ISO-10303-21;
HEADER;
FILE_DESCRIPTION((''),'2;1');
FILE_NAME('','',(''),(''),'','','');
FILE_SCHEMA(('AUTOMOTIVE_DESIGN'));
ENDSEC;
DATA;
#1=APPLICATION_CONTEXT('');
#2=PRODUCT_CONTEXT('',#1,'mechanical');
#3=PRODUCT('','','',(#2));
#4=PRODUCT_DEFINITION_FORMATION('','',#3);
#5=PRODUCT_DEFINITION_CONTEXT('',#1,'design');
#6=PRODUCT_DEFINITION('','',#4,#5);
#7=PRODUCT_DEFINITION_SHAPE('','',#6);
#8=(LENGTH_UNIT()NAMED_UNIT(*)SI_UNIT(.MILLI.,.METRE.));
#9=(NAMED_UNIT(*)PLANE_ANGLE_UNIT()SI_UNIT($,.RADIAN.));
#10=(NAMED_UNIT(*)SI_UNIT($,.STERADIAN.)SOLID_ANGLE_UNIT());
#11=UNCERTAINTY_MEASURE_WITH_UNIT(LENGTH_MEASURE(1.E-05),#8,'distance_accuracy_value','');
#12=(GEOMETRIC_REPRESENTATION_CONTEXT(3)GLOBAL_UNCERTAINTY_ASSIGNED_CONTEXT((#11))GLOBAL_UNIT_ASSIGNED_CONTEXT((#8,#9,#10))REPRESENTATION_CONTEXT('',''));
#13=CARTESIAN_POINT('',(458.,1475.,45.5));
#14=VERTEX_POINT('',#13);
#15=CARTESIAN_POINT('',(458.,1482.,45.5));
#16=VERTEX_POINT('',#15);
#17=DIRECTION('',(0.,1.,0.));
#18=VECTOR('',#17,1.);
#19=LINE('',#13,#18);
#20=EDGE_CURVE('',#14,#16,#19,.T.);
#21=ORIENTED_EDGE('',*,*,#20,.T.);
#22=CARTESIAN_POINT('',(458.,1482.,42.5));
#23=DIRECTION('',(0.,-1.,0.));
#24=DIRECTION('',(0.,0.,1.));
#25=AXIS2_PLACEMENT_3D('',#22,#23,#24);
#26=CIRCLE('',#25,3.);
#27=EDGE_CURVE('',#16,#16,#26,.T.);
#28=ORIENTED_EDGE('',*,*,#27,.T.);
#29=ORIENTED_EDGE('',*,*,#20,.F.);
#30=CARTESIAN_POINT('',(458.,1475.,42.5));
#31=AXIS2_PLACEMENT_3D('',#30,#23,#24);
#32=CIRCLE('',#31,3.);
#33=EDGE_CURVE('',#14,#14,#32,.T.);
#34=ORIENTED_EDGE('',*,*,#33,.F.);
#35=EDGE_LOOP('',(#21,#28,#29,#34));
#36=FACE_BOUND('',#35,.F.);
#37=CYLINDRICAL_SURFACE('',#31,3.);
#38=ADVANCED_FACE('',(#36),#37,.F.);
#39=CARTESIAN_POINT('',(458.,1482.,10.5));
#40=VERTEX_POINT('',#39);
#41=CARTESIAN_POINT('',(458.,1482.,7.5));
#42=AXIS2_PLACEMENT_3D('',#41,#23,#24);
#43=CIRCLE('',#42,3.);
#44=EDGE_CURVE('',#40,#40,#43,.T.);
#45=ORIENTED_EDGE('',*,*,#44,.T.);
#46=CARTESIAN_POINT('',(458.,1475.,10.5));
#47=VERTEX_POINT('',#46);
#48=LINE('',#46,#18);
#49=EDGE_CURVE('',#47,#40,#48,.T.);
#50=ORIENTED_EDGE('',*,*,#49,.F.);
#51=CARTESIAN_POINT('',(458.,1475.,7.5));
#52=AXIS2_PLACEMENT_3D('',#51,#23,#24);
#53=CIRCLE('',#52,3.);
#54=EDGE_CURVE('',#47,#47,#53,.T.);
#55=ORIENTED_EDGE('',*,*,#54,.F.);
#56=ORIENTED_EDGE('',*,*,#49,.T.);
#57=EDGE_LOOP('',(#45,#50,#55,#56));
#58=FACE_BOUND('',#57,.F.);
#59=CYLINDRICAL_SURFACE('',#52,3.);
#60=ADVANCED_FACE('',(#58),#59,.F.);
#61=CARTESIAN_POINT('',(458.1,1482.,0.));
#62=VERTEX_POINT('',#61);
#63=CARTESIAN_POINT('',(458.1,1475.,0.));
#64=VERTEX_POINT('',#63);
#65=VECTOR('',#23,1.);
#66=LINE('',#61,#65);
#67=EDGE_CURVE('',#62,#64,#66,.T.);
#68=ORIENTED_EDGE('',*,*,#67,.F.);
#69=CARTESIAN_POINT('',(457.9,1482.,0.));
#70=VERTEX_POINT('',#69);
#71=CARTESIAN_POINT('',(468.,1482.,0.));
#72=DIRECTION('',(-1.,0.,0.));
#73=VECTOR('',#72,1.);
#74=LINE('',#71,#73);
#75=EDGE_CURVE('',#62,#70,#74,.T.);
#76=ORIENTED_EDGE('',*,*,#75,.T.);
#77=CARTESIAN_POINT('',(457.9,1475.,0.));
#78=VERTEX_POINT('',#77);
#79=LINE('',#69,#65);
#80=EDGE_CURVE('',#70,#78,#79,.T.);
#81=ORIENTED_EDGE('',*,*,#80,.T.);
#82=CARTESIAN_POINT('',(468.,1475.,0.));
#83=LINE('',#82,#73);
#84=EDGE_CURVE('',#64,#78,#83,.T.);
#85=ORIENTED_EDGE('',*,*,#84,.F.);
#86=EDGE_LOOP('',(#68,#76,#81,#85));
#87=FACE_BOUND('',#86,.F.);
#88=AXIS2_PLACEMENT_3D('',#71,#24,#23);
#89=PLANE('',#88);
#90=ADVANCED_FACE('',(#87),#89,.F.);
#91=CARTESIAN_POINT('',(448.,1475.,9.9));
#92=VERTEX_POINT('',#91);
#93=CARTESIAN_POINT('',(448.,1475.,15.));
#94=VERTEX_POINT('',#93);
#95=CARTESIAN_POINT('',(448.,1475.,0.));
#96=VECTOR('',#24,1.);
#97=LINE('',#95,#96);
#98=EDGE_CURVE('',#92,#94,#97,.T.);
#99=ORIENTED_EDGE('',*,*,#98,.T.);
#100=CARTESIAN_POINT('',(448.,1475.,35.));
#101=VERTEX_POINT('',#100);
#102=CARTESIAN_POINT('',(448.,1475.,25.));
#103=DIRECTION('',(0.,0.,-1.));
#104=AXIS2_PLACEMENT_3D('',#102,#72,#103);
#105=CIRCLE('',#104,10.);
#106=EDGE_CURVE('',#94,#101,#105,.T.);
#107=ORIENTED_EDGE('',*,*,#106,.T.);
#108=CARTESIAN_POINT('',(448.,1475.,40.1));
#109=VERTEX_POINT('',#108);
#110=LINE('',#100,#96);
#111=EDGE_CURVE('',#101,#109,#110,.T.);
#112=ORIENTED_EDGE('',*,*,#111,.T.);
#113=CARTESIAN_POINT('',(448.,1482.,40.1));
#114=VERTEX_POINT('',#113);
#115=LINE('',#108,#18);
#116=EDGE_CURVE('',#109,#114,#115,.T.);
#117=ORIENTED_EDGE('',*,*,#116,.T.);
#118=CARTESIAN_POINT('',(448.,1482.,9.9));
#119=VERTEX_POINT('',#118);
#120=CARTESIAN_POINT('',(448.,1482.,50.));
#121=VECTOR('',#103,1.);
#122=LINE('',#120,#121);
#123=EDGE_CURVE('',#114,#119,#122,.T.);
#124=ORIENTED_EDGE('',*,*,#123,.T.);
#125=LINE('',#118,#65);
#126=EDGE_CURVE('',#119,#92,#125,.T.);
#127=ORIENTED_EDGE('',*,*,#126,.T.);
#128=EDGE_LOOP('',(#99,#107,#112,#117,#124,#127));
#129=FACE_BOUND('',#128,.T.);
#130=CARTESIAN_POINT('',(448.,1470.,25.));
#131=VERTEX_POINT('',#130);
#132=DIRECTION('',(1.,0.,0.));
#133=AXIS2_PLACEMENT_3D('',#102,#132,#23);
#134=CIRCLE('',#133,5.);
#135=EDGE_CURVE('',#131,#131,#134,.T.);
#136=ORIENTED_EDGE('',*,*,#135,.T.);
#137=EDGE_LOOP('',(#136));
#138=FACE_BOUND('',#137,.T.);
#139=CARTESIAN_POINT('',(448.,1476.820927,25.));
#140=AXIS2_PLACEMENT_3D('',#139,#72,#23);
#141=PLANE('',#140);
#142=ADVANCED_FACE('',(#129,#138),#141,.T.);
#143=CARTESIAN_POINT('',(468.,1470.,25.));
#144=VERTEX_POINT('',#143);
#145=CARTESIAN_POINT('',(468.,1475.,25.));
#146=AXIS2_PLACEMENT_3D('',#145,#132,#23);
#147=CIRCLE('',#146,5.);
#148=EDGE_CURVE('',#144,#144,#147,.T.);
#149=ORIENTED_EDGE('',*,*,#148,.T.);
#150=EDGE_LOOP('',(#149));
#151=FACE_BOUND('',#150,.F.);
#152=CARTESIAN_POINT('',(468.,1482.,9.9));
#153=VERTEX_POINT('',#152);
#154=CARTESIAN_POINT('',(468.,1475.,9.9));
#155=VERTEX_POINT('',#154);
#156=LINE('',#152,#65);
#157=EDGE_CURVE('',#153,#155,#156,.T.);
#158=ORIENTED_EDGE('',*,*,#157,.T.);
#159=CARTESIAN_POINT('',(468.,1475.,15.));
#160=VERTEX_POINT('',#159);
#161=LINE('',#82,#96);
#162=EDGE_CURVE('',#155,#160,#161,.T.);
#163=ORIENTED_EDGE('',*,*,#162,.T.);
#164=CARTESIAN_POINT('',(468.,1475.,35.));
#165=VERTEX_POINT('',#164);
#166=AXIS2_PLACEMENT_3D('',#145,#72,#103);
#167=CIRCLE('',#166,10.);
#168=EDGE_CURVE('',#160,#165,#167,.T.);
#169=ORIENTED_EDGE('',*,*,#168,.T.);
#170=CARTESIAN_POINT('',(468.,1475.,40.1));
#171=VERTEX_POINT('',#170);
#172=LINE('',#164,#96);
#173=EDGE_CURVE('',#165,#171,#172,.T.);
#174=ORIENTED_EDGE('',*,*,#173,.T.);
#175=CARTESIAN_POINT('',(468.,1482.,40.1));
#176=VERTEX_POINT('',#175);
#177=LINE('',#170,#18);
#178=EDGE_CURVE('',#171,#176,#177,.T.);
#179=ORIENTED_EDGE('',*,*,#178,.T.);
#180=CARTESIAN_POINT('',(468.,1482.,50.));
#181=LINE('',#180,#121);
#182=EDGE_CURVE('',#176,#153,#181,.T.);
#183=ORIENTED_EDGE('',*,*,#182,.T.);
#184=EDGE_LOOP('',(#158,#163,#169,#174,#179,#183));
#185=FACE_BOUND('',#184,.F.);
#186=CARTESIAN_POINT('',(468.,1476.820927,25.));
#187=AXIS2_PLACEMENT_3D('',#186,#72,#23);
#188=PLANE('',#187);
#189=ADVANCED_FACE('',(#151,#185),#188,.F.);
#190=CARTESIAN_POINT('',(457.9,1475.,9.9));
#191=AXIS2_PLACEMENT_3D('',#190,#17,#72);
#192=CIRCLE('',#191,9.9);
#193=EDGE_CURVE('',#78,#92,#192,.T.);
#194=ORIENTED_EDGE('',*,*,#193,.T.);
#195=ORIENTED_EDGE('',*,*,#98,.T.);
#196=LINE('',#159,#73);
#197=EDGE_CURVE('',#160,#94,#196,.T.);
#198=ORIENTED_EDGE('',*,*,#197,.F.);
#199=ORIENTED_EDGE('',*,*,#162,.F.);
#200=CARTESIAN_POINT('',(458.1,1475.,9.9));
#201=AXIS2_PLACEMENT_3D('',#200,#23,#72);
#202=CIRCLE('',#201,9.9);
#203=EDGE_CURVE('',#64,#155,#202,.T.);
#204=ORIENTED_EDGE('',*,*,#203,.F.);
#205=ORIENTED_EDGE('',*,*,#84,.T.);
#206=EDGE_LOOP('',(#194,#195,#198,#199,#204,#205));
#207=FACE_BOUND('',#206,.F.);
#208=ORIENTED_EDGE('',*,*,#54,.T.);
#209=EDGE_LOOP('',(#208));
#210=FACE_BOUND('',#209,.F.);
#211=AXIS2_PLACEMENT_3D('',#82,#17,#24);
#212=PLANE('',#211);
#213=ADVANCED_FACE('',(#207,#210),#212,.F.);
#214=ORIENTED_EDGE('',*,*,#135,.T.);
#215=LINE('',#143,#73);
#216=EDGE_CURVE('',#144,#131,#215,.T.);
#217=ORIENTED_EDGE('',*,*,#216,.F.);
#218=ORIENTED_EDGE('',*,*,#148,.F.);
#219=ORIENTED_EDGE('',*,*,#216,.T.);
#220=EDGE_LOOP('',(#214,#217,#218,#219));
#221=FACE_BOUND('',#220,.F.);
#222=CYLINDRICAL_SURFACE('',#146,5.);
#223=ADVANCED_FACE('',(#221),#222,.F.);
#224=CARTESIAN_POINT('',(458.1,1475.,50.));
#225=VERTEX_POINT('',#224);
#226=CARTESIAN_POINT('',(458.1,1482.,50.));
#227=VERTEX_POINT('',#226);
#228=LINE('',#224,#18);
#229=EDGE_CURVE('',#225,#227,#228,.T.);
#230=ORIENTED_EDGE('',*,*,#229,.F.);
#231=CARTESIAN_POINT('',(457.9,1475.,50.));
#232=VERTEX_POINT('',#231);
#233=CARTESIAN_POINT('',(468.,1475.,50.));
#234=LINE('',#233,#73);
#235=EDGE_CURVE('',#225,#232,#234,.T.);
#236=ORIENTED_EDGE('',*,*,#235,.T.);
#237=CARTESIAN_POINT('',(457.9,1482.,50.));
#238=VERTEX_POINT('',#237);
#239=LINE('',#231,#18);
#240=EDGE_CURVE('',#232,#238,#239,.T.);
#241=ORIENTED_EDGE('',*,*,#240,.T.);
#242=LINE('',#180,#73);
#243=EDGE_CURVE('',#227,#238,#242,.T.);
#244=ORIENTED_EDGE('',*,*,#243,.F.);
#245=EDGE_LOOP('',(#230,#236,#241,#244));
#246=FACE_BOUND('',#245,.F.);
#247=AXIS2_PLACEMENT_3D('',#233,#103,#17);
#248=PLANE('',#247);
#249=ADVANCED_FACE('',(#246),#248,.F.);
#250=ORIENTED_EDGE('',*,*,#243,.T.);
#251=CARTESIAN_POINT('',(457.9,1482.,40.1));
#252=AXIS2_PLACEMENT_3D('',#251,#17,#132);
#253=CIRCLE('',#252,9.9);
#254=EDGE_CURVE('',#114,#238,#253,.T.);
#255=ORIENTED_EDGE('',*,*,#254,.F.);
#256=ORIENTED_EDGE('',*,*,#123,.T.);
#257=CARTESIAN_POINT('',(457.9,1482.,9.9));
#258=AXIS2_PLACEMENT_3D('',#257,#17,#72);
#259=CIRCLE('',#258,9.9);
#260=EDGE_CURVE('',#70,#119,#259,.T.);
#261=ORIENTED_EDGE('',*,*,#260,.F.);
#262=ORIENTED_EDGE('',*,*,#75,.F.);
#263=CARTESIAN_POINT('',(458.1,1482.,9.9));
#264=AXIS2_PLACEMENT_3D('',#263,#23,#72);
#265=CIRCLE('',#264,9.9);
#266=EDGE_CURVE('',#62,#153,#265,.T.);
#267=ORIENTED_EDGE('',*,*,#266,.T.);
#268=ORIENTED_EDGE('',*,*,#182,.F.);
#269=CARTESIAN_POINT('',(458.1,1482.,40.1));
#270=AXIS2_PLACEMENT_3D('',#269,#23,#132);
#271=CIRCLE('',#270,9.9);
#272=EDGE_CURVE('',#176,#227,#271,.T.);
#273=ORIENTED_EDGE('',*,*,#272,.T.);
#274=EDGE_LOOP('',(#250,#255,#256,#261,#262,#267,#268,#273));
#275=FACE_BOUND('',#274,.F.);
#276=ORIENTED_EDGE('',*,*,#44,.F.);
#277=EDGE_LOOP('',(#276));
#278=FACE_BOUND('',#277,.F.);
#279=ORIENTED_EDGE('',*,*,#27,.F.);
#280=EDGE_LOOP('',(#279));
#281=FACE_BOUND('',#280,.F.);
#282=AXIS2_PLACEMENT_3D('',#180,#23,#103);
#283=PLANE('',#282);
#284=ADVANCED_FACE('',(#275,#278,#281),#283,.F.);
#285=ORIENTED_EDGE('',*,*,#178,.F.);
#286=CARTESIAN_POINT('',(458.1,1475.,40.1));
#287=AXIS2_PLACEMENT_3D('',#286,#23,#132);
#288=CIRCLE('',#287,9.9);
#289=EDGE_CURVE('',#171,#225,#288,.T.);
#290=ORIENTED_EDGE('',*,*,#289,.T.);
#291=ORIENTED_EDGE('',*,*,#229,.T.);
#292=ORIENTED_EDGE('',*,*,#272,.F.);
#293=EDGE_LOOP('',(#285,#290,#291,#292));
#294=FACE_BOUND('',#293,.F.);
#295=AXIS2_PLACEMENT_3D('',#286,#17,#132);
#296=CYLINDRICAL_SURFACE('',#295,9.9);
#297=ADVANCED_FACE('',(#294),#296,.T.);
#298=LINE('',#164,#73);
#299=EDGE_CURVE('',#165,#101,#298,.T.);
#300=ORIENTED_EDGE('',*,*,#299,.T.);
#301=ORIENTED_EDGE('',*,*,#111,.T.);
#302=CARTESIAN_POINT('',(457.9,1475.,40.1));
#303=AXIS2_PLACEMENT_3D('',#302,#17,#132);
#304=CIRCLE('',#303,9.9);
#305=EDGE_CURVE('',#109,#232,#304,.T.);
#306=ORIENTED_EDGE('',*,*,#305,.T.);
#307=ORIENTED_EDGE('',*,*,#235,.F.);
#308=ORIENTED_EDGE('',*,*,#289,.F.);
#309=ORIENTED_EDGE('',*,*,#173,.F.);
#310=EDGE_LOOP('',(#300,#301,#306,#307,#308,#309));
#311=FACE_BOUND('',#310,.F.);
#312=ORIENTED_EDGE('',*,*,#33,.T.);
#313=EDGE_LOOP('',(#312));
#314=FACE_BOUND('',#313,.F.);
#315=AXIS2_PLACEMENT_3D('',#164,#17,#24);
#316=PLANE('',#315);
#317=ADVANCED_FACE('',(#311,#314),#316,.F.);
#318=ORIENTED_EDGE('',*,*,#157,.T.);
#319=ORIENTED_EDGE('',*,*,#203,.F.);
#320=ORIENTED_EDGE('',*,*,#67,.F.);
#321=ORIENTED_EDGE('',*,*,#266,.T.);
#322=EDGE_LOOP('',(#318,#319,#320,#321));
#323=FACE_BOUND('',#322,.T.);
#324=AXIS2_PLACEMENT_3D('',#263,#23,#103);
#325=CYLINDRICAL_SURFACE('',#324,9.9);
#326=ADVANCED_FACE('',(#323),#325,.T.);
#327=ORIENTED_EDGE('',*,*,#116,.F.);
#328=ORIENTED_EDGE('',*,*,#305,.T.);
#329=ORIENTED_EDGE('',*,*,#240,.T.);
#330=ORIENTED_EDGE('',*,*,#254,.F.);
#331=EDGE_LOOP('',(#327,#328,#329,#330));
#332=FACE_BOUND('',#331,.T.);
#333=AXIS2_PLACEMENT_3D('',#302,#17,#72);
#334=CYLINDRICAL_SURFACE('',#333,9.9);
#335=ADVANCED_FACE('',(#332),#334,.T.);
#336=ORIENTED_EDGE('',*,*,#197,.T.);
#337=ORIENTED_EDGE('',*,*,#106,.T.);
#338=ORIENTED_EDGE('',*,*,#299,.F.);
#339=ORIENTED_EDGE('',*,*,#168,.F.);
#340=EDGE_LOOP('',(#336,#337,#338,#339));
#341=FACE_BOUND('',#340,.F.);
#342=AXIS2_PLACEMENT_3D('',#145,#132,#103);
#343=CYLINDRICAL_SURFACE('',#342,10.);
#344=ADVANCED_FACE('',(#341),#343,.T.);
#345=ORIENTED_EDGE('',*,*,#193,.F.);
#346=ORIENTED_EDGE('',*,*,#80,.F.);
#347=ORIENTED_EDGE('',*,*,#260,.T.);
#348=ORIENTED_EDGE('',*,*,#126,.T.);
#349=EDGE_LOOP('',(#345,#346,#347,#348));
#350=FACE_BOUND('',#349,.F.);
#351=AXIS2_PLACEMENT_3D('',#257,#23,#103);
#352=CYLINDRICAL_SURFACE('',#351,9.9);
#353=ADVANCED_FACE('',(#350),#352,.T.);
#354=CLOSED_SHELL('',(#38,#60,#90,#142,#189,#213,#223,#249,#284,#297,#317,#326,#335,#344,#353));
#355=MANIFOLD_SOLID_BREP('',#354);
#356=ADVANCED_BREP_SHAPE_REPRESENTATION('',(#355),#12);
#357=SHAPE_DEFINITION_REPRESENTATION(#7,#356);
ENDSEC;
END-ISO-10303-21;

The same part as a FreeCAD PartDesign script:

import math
import FreeCAD as App
import Part
import Sketcher

V = App.Vector


def edges_at(feature, points):
    """Names of the edges that pass closest to the given points."""
    edges = feature.Shape.Edges
    near = lambda p: min(range(len(edges)), key=lambda i: edges[i].distToShape(Part.Vertex(*p))[0])
    return sorted({f"Edge{near(p) + 1}" for p in points})

doc = App.newDocument("Part")
body = doc.addObject("PartDesign::Body", "Body")

# Sketch on XY plane
sketch1 = body.newObject("Sketcher::SketchObject", "Sketch")
sketch1.AttachmentSupport = (doc.getObject("XY_Plane"), [""])
sketch1.MapMode = "FlatFace"
sketch1.addGeometry(Part.LineSegment(V(18, 0, 0), V(25, 0, 0)), False)
sketch1.addGeometry(Part.LineSegment(V(25, 0, 0), V(25, 15, 0)), False)
sketch1.addGeometry(Part.ArcOfCircle(Part.Circle(V(25, 25, 0), V(0, 0, 1), 10), math.radians(-90), math.radians(90)), False)
sketch1.addGeometry(Part.LineSegment(V(25, 35, 0), V(25, 50, 0)), False)
sketch1.addGeometry(Part.LineSegment(V(25, 50, 0), V(18, 50, 0)), False)
sketch1.addGeometry(Part.LineSegment(V(18, 50, 0), V(18, 0, 0)), False)
sketch1.addConstraint(Sketcher.Constraint("Coincident", 0, 2, 1, 1))
sketch1.addConstraint(Sketcher.Constraint("Coincident", 1, 2, 2, 1))
sketch1.addConstraint(Sketcher.Constraint("Coincident", 2, 2, 3, 1))
sketch1.addConstraint(Sketcher.Constraint("Coincident", 3, 2, 4, 1))
sketch1.addConstraint(Sketcher.Constraint("Coincident", 4, 2, 5, 1))
sketch1.addConstraint(Sketcher.Constraint("Coincident", 5, 2, 0, 1))
sketch1.addConstraint(Sketcher.Constraint("Horizontal", 0))
sketch1.addConstraint(Sketcher.Constraint("Vertical", 1))
sketch1.addConstraint(Sketcher.Constraint("Vertical", 3))
sketch1.addConstraint(Sketcher.Constraint("Horizontal", 4))
sketch1.addConstraint(Sketcher.Constraint("Vertical", 5))
sketch1.addConstraint(Sketcher.Constraint("PointOnObject", 0, 2, -1))
sketch1.addConstraint(Sketcher.Constraint("Vertical", 2, 3, 0, 2))
sketch1.addConstraint(Sketcher.Constraint("Vertical", 1, 2, 2, 2))
sketch1.addConstraint(Sketcher.Constraint("Equal", 1, 3))
sketch1.addConstraint(Sketcher.Constraint("Radius", 2, 10.0))
sketch1.addConstraint(Sketcher.Constraint("DistanceX", 0, 1, 0, 2, 7.0))
sketch1.addConstraint(Sketcher.Constraint("DistanceY", 1, 1, 1, 2, 15.0))
sketch1.addConstraint(Sketcher.Constraint("DistanceX", -1, 1, 2, 3, 25.0))
pad1 = body.newObject("PartDesign::Pad", "Pad")
pad1.Profile = sketch1
pad1.Length = 20

# Sketch on XY plane
sketch2 = body.newObject("Sketcher::SketchObject", "Sketch001")
sketch2.AttachmentSupport = (doc.getObject("XY_Plane"), [""])
sketch2.MapMode = "FlatFace"
sketch2.addGeometry(Part.Circle(V(25, 25, 0), V(0, 0, 1), 5), False)
sketch2.addConstraint(Sketcher.Constraint("Diameter", 0, 10.0))
sketch2.addConstraint(Sketcher.Constraint("DistanceX", -1, 1, 0, 3, 25.0))
sketch2.addConstraint(Sketcher.Constraint("DistanceY", -1, 1, 0, 3, 25.0))
pocket1 = body.newObject("PartDesign::Pocket", "Pocket")
pocket1.Profile = sketch2
pocket1.Type = "ThroughAll"
pocket1.Reversed = True
doc.recompute()

fillet = body.newObject("PartDesign::Fillet", "Fillet")
fillet.Base = (pocket1, edges_at(pocket1, [
    (21.5, 0, 0),
    (21.5, 50, 0),
    (21.5, 50, 20),
    (21.5, 0, 20),
]))
fillet.Radius = 9.9

# Sketch on YZ plane
sketch3 = body.newObject("Sketcher::SketchObject", "Sketch002")
sketch3.AttachmentSupport = (doc.getObject("YZ_Plane"), [""])
sketch3.MapMode = "FlatFace"
sketch3.AttachmentOffset = App.Placement(V(0, 0, 25), App.Rotation())
sketch3.addGeometry(Part.Circle(V(7.5, 10, 0), V(0, 0, 1), 3), False)
sketch3.addGeometry(Part.Circle(V(42.5, 10, 0), V(0, 0, 1), 3), False)
sketch3.addConstraint(Sketcher.Constraint("Equal", 0, 1))
sketch3.addConstraint(Sketcher.Constraint("Horizontal", 0, 3, 1, 3))
sketch3.addConstraint(Sketcher.Constraint("Diameter", 0, 6.0))
sketch3.addConstraint(Sketcher.Constraint("DistanceY", -1, 1, 0, 3, 10.0))
sketch3.addConstraint(Sketcher.Constraint("DistanceX", 0, 3, 1, 3, 35.0))
sketch3.addConstraint(Sketcher.Constraint("DistanceX", -1, 1, 0, 3, 7.5))
pocket2 = body.newObject("PartDesign::Pocket", "Pocket001")
pocket2.Profile = sketch3
pocket2.Type = "ThroughAll"
body2 = doc.addObject("PartDesign::Body", "Body001")
doc.recompute()

body.Placement = App.Placement(V(0, 0, 0), App.Rotation(V(1, 0, 0), 90))
boolean = body2.newObject("PartDesign::Boolean", "Boolean")
boolean.Type = "Fuse"
boolean.addObjects([body])
body3 = doc.addObject("PartDesign::Body", "Body002")
doc.recompute()

body2.Placement = App.Placement(V(120.75, 1500, 0), App.Rotation(V(0, 0, 1), 270))
boolean2 = body3.newObject("PartDesign::Boolean", "Boolean001")
boolean2.Type = "Fuse"
boolean2.addObjects([body2])
body4 = doc.addObject("PartDesign::Body", "Body003")
doc.recompute()

body3.Placement = App.Placement(V(347.25, 0, 0), App.Rotation(V(0, 0, 1), 0))
boolean3 = body4.newObject("PartDesign::Boolean", "Boolean002")
boolean3.Type = "Fuse"
boolean3.addObjects([body3])

doc.recompute()
